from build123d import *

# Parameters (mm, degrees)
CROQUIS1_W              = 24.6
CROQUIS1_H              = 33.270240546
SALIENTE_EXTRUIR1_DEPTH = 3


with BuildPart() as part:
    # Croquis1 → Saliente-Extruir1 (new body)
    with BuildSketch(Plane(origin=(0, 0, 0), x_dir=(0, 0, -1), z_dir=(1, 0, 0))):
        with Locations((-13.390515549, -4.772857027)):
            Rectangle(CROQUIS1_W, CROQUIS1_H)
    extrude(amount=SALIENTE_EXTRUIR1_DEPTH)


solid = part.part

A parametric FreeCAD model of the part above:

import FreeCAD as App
import Part
import Sketcher
from FreeCAD import Vector

doc = App.newDocument("Part")
body = doc.addObject("PartDesign::Body", "Body")

sketch1 = body.newObject("Sketcher::SketchObject", "Sketch")
sketch1.AttachmentSupport = (doc.getObject("YZ_Plane"), [""])
sketch1.MapMode = "FlatFace"
sketch1.addGeometry([
    Part.LineSegment(Vector(12, 26, 0), Vector(-21, 26, 0)),
    Part.LineSegment(Vector(-21, 26, 0), Vector(-21, 1, 0)),
    Part.LineSegment(Vector(-21, 1, 0), Vector(12, 1, 0)),
    Part.LineSegment(Vector(12, 1, 0), Vector(12, 26, 0)),
], False)
sketch1.addConstraint([
    Sketcher.Constraint("Coincident", 0, 2, 1, 1),
    Sketcher.Constraint("Coincident", 1, 2, 2, 1),
    Sketcher.Constraint("Coincident", 2, 2, 3, 1),
    Sketcher.Constraint("Coincident", 3, 2, 0, 1),
    Sketcher.Constraint("Horizontal", 0),
    Sketcher.Constraint("Vertical", 1),
    Sketcher.Constraint("Horizontal", 2),
    Sketcher.Constraint("Vertical", 3),
    Sketcher.Constraint("DistanceY", 1, 2, 1, 1, 24.6),
    Sketcher.Constraint("DistanceX", 0, 2, 0, 1, 33.270241),
    Sketcher.Constraint("DistanceX", 0, 2, -1, 1, 21.407977),
    Sketcher.Constraint("DistanceY", -1, 1, 0, 2, 25.690516),
])
pad1 = body.newObject("PartDesign::Pad", "Pad")
pad1.Profile = sketch1
pad1.Length = 3

doc.recompute()
